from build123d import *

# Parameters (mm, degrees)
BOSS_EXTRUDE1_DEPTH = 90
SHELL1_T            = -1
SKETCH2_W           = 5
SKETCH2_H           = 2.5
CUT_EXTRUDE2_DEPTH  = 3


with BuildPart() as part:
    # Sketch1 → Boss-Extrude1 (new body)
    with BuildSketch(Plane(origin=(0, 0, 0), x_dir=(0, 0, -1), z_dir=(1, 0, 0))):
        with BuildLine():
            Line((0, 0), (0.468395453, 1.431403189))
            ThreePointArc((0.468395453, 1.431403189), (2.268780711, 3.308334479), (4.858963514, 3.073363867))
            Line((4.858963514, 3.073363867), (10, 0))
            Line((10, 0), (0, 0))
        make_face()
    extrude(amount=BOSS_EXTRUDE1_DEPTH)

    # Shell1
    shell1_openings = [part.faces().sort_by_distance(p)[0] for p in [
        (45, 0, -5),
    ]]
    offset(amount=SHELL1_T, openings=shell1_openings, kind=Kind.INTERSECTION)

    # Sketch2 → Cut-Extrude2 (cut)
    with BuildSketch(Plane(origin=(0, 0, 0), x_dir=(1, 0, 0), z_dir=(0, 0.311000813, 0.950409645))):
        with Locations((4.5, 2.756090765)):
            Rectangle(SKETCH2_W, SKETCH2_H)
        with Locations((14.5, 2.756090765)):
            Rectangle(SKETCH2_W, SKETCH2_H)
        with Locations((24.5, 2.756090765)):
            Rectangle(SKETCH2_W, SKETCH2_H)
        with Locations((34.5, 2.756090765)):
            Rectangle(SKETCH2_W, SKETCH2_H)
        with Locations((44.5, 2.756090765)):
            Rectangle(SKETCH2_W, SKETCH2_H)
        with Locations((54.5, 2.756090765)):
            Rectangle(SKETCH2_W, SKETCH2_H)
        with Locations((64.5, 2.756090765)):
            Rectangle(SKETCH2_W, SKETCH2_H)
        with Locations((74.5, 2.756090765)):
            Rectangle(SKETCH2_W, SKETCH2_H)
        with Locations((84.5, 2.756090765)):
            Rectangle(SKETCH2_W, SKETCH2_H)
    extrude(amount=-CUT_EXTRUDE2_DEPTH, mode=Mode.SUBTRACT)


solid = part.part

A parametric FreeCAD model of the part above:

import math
import FreeCAD as App
import Part
import Sketcher
from FreeCAD import Vector
Q = App.Units.Quantity


def faces_at(feature, points):
    """Names of the faces that lie closest to the given points."""
    faces = feature.Shape.Faces
    near = lambda p: min(range(len(faces)), key=lambda i: faces[i].distToShape(Part.Vertex(*p))[0])
    return sorted({f"Face{near(p) + 1}" for p in points})

doc = App.newDocument("Part")
body = doc.addObject("PartDesign::Body", "Body")

sketch1 = body.newObject("Sketcher::SketchObject", "Sketch")
sketch1.AttachmentSupport = (doc.getObject("YZ_Plane"), [""])
sketch1.MapMode = "FlatFace"
sketch1.addGeometry(Part.LineSegment(Vector(1.431403, -0.468395, 0), Vector(0, 0, 0)), False)
sketch1.addGeometry(Part.LineSegment(Vector(0, 0, 0), Vector(0, -10, 0)), False)
sketch1.addGeometry(Part.LineSegment(Vector(0, -10, 0), Vector(3.073364, -4.858964, 0)), False)
sketch1.addGeometry(Part.ArcOfCircle(Part.Circle(Vector(0.498401, -3.319624, 0), Vector(0, 0, 1), 3), math.radians(-30.871411), math.radians(71.880446)), False)
sketch1.addConstraint(Sketcher.Constraint("Coincident", 0, 2, 1, 1))
sketch1.addConstraint(Sketcher.Constraint("Coincident", 1, 2, 2, 1))
sketch1.addConstraint(Sketcher.Constraint("Tangent", 2, 2, 3, 1))
sketch1.addConstraint(Sketcher.Constraint("Tangent", 3, 2, 0, 1))
sketch1.addConstraint(Sketcher.Constraint("Vertical", 1))
sketch1.addConstraint(Sketcher.Constraint("Coincident", 0, 2, -1, 1))
sketch1.addConstraint(Sketcher.Constraint("Radius", 3, Q("3 mm")))
sketch1.addConstraint(Sketcher.Constraint("DistanceY", 1, 2, 1, 1, Q("10 mm")))
sketch1.addConstraint(Sketcher.Constraint("DistanceX", -1, 1, 3, 3, Q("0.498401 mm")))
sketch1.addConstraint(Sketcher.Constraint("Distance", 0, Q("1.506091 mm")))
pad1 = body.newObject("PartDesign::Pad", "Pad")
pad1.Profile = sketch1
pad1.Length = 90
doc.recompute()

thickness = body.newObject("PartDesign::Thickness", "Thickness")
thickness.Base = (pad1, faces_at(pad1, [(45, 0, -5)]))
thickness.Value = 1
thickness.Reversed = True
thickness.Join = "Intersection"

sketch2 = body.newObject("Sketcher::SketchObject", "Sketch001")
sketch2.Placement = App.Placement(Vector(0, 0, 0), App.Rotation(Vector(1, 0, 0), Vector(0, 0.950409645, -0.311000813), Vector(0, 0.311000813, 0.950409645), "ZXY"))
sketch2.addGeometry(Part.LineSegment(Vector(2, 4.006091, 0), Vector(2, 1.506091, 0)), False)
sketch2.addGeometry(Part.LineSegment(Vector(2, 1.506091, 0), Vector(7, 1.506091, 0)), False)
sketch2.addGeometry(Part.LineSegment(Vector(7, 1.506091, 0), Vector(7, 4.006091, 0)), False)
sketch2.addGeometry(Part.LineSegment(Vector(7, 4.006091, 0), Vector(2, 4.006091, 0)), False)
sketch2.addGeometry(Part.LineSegment(Vector(12, 4.006091, 0), Vector(12, 1.506091, 0)), False)
sketch2.addGeometry(Part.LineSegment(Vector(12, 1.506091, 0), Vector(17, 1.506091, 0)), False)
sketch2.addGeometry(Part.LineSegment(Vector(17, 1.506091, 0), Vector(17, 4.006091, 0)), False)
sketch2.addGeometry(Part.LineSegment(Vector(17, 4.006091, 0), Vector(12, 4.006091, 0)), False)
sketch2.addGeometry(Part.LineSegment(Vector(22, 4.006091, 0), Vector(22, 1.506091, 0)), False)
sketch2.addGeometry(Part.LineSegment(Vector(22, 1.506091, 0), Vector(27, 1.506091, 0)), False)
sketch2.addGeometry(Part.LineSegment(Vector(27, 1.506091, 0), Vector(27, 4.006091, 0)), False)
sketch2.addGeometry(Part.LineSegment(Vector(27, 4.006091, 0), Vector(22, 4.006091, 0)), False)
sketch2.addGeometry(Part.LineSegment(Vector(32, 4.006091, 0), Vector(32, 1.506091, 0)), False)
sketch2.addGeometry(Part.LineSegment(Vector(32, 1.506091, 0), Vector(37, 1.506091, 0)), False)
sketch2.addGeometry(Part.LineSegment(Vector(37, 1.506091, 0), Vector(37, 4.006091, 0)), False)
sketch2.addGeometry(Part.LineSegment(Vector(37, 4.006091, 0), Vector(32, 4.006091, 0)), False)
sketch2.addGeometry(Part.LineSegment(Vector(42, 4.006091, 0), Vector(42, 1.506091, 0)), False)
sketch2.addGeometry(Part.LineSegment(Vector(42, 1.506091, 0), Vector(47, 1.506091, 0)), False)
sketch2.addGeometry(Part.LineSegment(Vector(47, 1.506091, 0), Vector(47, 4.006091, 0)), False)
sketch2.addGeometry(Part.LineSegment(Vector(47, 4.006091, 0), Vector(42, 4.006091, 0)), False)
sketch2.addGeometry(Part.LineSegment(Vector(52, 4.006091, 0), Vector(52, 1.506091, 0)), False)
sketch2.addGeometry(Part.LineSegment(Vector(52, 1.506091, 0), Vector(57, 1.506091, 0)), False)
sketch2.addGeometry(Part.LineSegment(Vector(57, 1.506091, 0), Vector(57, 4.006091, 0)), False)
sketch2.addGeometry(Part.LineSegment(Vector(57, 4.006091, 0), Vector(52, 4.006091, 0)), False)
sketch2.addGeometry(Part.LineSegment(Vector(62, 4.006091, 0), Vector(62, 1.506091, 0)), False)
sketch2.addGeometry(Part.LineSegment(Vector(62, 1.506091, 0), Vector(67, 1.506091, 0)), False)
sketch2.addGeometry(Part.LineSegment(Vector(67, 1.506091, 0), Vector(67, 4.006091, 0)), False)
sketch2.addGeometry(Part.LineSegment(Vector(67, 4.006091, 0), Vector(62, 4.006091, 0)), False)
sketch2.addGeometry(Part.LineSegment(Vector(72, 4.006091, 0), Vector(72, 1.506091, 0)), False)
sketch2.addGeometry(Part.LineSegment(Vector(72, 1.506091, 0), Vector(77, 1.506091, 0)), False)
sketch2.addGeometry(Part.LineSegment(Vector(77, 1.506091, 0), Vector(77, 4.006091, 0)), False)
sketch2.addGeometry(Part.LineSegment(Vector(77, 4.006091, 0), Vector(72, 4.006091, 0)), False)
sketch2.addGeometry(Part.LineSegment(Vector(82, 4.006091, 0), Vector(82, 1.506091, 0)), False)
sketch2.addGeometry(Part.LineSegment(Vector(82, 1.506091, 0), Vector(87, 1.506091, 0)), False)
sketch2.addGeometry(Part.LineSegment(Vector(87, 1.506091, 0), Vector(87, 4.006091, 0)), False)
sketch2.addGeometry(Part.LineSegment(Vector(87, 4.006091, 0), Vector(82, 4.006091, 0)), False)
sketch2.addConstraint(Sketcher.Constraint("Coincident", 0, 2, 1, 1))
sketch2.addConstraint(Sketcher.Constraint("Coincident", 1, 2, 2, 1))
sketch2.addConstraint(Sketcher.Constraint("Coincident", 2, 2, 3, 1))
sketch2.addConstraint(Sketcher.Constraint("Coincident", 3, 2, 0, 1))
sketch2.addConstraint(Sketcher.Constraint("Coincident", 4, 2, 5, 1))
sketch2.addConstraint(Sketcher.Constraint("Coincident", 5, 2, 6, 1))
sketch2.addConstraint(Sketcher.Constraint("Coincident", 6, 2, 7, 1))
sketch2.addConstraint(Sketcher.Constraint("Coincident", 7, 2, 4, 1))
sketch2.addConstraint(Sketcher.Constraint("Coincident", 8, 2, 9, 1))
sketch2.addConstraint(Sketcher.Constraint("Coincident", 9, 2, 10, 1))
sketch2.addConstraint(Sketcher.Constraint("Coincident", 10, 2, 11, 1))
sketch2.addConstraint(Sketcher.Constraint("Coincident", 11, 2, 8, 1))
sketch2.addConstraint(Sketcher.Constraint("Coincident", 12, 2, 13, 1))
sketch2.addConstraint(Sketcher.Constraint("Coincident", 13, 2, 14, 1))
sketch2.addConstraint(Sketcher.Constraint("Coincident", 14, 2, 15, 1))
sketch2.addConstraint(Sketcher.Constraint("Coincident", 15, 2, 12, 1))
sketch2.addConstraint(Sketcher.Constraint("Coincident", 16, 2, 17, 1))
sketch2.addConstraint(Sketcher.Constraint("Coincident", 17, 2, 18, 1))
sketch2.addConstraint(Sketcher.Constraint("Coincident", 18, 2, 19, 1))
sketch2.addConstraint(Sketcher.Constraint("Coincident", 19, 2, 16, 1))
sketch2.addConstraint(Sketcher.Constraint("Coincident", 20, 2, 21, 1))
sketch2.addConstraint(Sketcher.Constraint("Coincident", 21, 2, 22, 1))
sketch2.addConstraint(Sketcher.Constraint("Coincident", 22, 2, 23, 1))
sketch2.addConstraint(Sketcher.Constraint("Coincident", 23, 2, 20, 1))
sketch2.addConstraint(Sketcher.Constraint("Coincident", 24, 2, 25, 1))
sketch2.addConstraint(Sketcher.Constraint("Coincident", 25, 2, 26, 1))
sketch2.addConstraint(Sketcher.Constraint("Coincident", 26, 2, 27, 1))
sketch2.addConstraint(Sketcher.Constraint("Coincident", 27, 2, 24, 1))
sketch2.addConstraint(Sketcher.Constraint("Coincident", 28, 2, 29, 1))
sketch2.addConstraint(Sketcher.Constraint("Coincident", 29, 2, 30, 1))
sketch2.addConstraint(Sketcher.Constraint("Coincident", 30, 2, 31, 1))
sketch2.addConstraint(Sketcher.Constraint("Coincident", 31, 2, 28, 1))
sketch2.addConstraint(Sketcher.Constraint("Coincident", 32, 2, 33, 1))
sketch2.addConstraint(Sketcher.Constraint("Coincident", 33, 2, 34, 1))
sketch2.addConstraint(Sketcher.Constraint("Coincident", 34, 2, 35, 1))
sketch2.addConstraint(Sketcher.Constraint("Coincident", 35, 2, 32, 1))
sketch2.addConstraint(Sketcher.Constraint("Vertical", 0))
sketch2.addConstraint(Sketcher.Constraint("Horizontal", 1))
sketch2.addConstraint(Sketcher.Constraint("Vertical", 2))
sketch2.addConstraint(Sketcher.Constraint("Horizontal", 3))
sketch2.addConstraint(Sketcher.Constraint("Vertical", 4))
sketch2.addConstraint(Sketcher.Constraint("Horizontal", 5))
sketch2.addConstraint(Sketcher.Constraint("Vertical", 6))
sketch2.addConstraint(Sketcher.Constraint("Horizontal", 7))
sketch2.addConstraint(Sketcher.Constraint("Vertical", 8))
sketch2.addConstraint(Sketcher.Constraint("Horizontal", 9))
sketch2.addConstraint(Sketcher.Constraint("Vertical", 10))
sketch2.addConstraint(Sketcher.Constraint("Horizontal", 11))
sketch2.addConstraint(Sketcher.Constraint("Vertical", 12))
sketch2.addConstraint(Sketcher.Constraint("Horizontal", 13))
sketch2.addConstraint(Sketcher.Constraint("Vertical", 14))
sketch2.addConstraint(Sketcher.Constraint("Horizontal", 15))
sketch2.addConstraint(Sketcher.Constraint("Vertical", 16))
sketch2.addConstraint(Sketcher.Constraint("Horizontal", 17))
sketch2.addConstraint(Sketcher.Constraint("Vertical", 18))
sketch2.addConstraint(Sketcher.Constraint("Horizontal", 19))
sketch2.addConstraint(Sketcher.Constraint("Vertical", 20))
sketch2.addConstraint(Sketcher.Constraint("Horizontal", 21))
sketch2.addConstraint(Sketcher.Constraint("Vertical", 22))
sketch2.addConstraint(Sketcher.Constraint("Horizontal", 23))
sketch2.addConstraint(Sketcher.Constraint("Vertical", 24))
sketch2.addConstraint(Sketcher.Constraint("Horizontal", 25))
sketch2.addConstraint(Sketcher.Constraint("Vertical", 26))
sketch2.addConstraint(Sketcher.Constraint("Horizontal", 27))
sketch2.addConstraint(Sketcher.Constraint("Vertical", 28))
sketch2.addConstraint(Sketcher.Constraint("Horizontal", 29))
sketch2.addConstraint(Sketcher.Constraint("Vertical", 30))
sketch2.addConstraint(Sketcher.Constraint("Horizontal", 31))
sketch2.addConstraint(Sketcher.Constraint("Vertical", 32))
sketch2.addConstraint(Sketcher.Constraint("Horizontal", 33))
sketch2.addConstraint(Sketcher.Constraint("Vertical", 34))
sketch2.addConstraint(Sketcher.Constraint("Horizontal", 35))
sketch2.addConstraint(Sketcher.Constraint("Horizontal", 1, 2, 4, 2))
sketch2.addConstraint(Sketcher.Constraint("Horizontal", 3, 2, 6, 2))
sketch2.addConstraint(Sketcher.Constraint("Horizontal", 5, 2, 8, 2))
sketch2.addConstraint(Sketcher.Constraint("Horizontal", 7, 2, 10, 2))
sketch2.addConstraint(Sketcher.Constraint("Horizontal", 9, 2, 12, 2))
sketch2.addConstraint(Sketcher.Constraint("Horizontal", 11, 2, 14, 2))
sketch2.addConstraint(Sketcher.Constraint("Horizontal", 13, 2, 16, 2))
sketch2.addConstraint(Sketcher.Constraint("Horizontal", 15, 2, 18, 2))
sketch2.addConstraint(Sketcher.Constraint("Horizontal", 17, 2, 20, 2))
sketch2.addConstraint(Sketcher.Constraint("Horizontal", 19, 2, 22, 2))
sketch2.addConstraint(Sketcher.Constraint("Horizontal", 21, 2, 24, 2))
sketch2.addConstraint(Sketcher.Constraint("Horizontal", 23, 2, 26, 2))
sketch2.addConstraint(Sketcher.Constraint("Horizontal", 25, 2, 28, 2))
sketch2.addConstraint(Sketcher.Constraint("Horizontal", 27, 2, 30, 2))
sketch2.addConstraint(Sketcher.Constraint("Horizontal", 29, 2, 32, 2))
sketch2.addConstraint(Sketcher.Constraint("Horizontal", 31, 2, 34, 2))
sketch2.addConstraint(Sketcher.Constraint("Equal", 3, 5))
sketch2.addConstraint(Sketcher.Constraint("Equal", 7, 9))
sketch2.addConstraint(Sketcher.Constraint("Equal", 11, 13))
sketch2.addConstraint(Sketcher.Constraint("Equal", 15, 17))
sketch2.addConstraint(Sketcher.Constraint("Equal", 19, 21))
sketch2.addConstraint(Sketcher.Constraint("Equal", 23, 25))
sketch2.addConstraint(Sketcher.Constraint("Equal", 27, 29))
sketch2.addConstraint(Sketcher.Constraint("Equal", 31, 33))
sketch2.addConstraint(Sketcher.Constraint("DistanceX", 1, 1, 1, 2, Q("5 mm")))
sketch2.addConstraint(Sketcher.Constraint("DistanceY", 0, 2, 0, 1, Q("2.5 mm")))
sketch2.addConstraint(Sketcher.Constraint("DistanceX", -1, 1, 0, 2, Q("2 mm")))
sketch2.addConstraint(Sketcher.Constraint("DistanceX", -1, 1, 4, 2, Q("12 mm")))
sketch2.addConstraint(Sketcher.Constraint("DistanceX", -1, 1, 8, 2, Q("22 mm")))
sketch2.addConstraint(Sketcher.Constraint("DistanceX", -1, 1, 12, 2, Q("32 mm")))
sketch2.addConstraint(Sketcher.Constraint("DistanceX", -1, 1, 16, 2, Q("42 mm")))
sketch2.addConstraint(Sketcher.Constraint("DistanceX", -1, 1, 20, 2, Q("52 mm")))
sketch2.addConstraint(Sketcher.Constraint("DistanceX", -1, 1, 24, 2, Q("62 mm")))
sketch2.addConstraint(Sketcher.Constraint("DistanceX", -1, 1, 28, 2, Q("72 mm")))
sketch2.addConstraint(Sketcher.Constraint("DistanceX", -1, 1, 32, 2, Q("82 mm")))
sketch2.addConstraint(Sketcher.Constraint("DistanceY", -1, 1, 0, 2, Q("1.506091 mm")))
pocket1 = body.newObject("PartDesign::Pocket", "Pocket")
pocket1.Profile = sketch2
pocket1.Length = 3

doc.recompute()
